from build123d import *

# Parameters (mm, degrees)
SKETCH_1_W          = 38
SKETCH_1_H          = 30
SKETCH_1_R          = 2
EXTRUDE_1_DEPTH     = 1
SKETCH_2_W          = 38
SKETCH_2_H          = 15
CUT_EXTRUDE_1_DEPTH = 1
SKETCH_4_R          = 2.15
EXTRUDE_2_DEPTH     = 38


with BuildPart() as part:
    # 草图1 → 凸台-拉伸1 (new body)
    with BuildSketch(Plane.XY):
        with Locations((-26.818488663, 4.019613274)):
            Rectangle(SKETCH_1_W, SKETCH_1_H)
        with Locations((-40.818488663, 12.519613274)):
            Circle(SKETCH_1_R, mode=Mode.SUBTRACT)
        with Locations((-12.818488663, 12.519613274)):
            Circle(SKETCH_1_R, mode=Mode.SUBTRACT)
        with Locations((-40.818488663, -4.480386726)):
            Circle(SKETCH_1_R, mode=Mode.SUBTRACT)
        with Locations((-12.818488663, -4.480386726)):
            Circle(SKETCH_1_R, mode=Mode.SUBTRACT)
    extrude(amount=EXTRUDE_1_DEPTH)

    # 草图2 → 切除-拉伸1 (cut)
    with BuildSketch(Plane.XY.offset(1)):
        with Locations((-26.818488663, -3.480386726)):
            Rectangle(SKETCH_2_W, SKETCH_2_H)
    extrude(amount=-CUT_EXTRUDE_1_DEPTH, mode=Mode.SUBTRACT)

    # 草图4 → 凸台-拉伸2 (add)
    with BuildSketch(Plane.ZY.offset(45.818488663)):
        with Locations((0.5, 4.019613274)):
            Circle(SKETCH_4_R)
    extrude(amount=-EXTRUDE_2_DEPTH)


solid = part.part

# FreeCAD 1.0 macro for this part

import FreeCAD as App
import Part
import Sketcher

V = App.Vector

doc = App.newDocument("Part")
body = doc.addObject("PartDesign::Body", "Body")

sketch1 = body.newObject("Sketcher::SketchObject", "Sketch")
sketch1.AttachmentSupport = (doc.getObject("XY_Plane"), [""])
sketch1.MapMode = "FlatFace"
sketch1.addGeometry([
    Part.LineSegment(V(-45.8, 19, 0), V(-45.8, -11, 0)),
    Part.LineSegment(V(-45.8, -11, 0), V(-7.8, -11, 0)),
    Part.LineSegment(V(-7.8, -11, 0), V(-7.8, 19, 0)),
    Part.LineSegment(V(-7.8, 19, 0), V(-45.8, 19, 0)),
    Part.Circle(V(-40.8, -4.5, 0), V(0, 0, 1), 2),
    Part.Circle(V(-12.8, -4.5, 0), V(0, 0, 1), 2),
    Part.Circle(V(-40.8, 12.5, 0), V(0, 0, 1), 2),
    Part.Circle(V(-12.8, 12.5, 0), V(0, 0, 1), 2),
], False)
sketch1.addConstraint([
    Sketcher.Constraint("Coincident", 0, 2, 1, 1),
    Sketcher.Constraint("Coincident", 1, 2, 2, 1),
    Sketcher.Constraint("Coincident", 2, 2, 3, 1),
    Sketcher.Constraint("Coincident", 3, 2, 0, 1),
    Sketcher.Constraint("Vertical", 0),
    Sketcher.Constraint("Horizontal", 1),
    Sketcher.Constraint("Vertical", 2),
    Sketcher.Constraint("Horizontal", 3),
    Sketcher.Constraint("Equal", 4, 5),
    Sketcher.Constraint("Equal", 5, 6),
    Sketcher.Constraint("Equal", 6, 7),
    Sketcher.Constraint("Horizontal", 4, 3, 5, 3),
    Sketcher.Constraint("Horizontal", 6, 3, 7, 3),
    Sketcher.Constraint("Vertical", 4, 3, 6, 3),
    Sketcher.Constraint("Vertical", 5, 3, 7, 3),
    Sketcher.Constraint("Diameter", 4, 4.0),
    Sketcher.Constraint("DistanceX", 1, 1, 1, 2, 38.0),
    Sketcher.Constraint("DistanceY", 0, 2, 0, 1, 30.0),
    Sketcher.Constraint("DistanceX", 4, 3, 5, 3, 28.0),
    Sketcher.Constraint("DistanceY", 4, 3, 6, 3, 17.0),
    Sketcher.Constraint("DistanceX", 0, 2, 4, 3, 5.0),
    Sketcher.Constraint("DistanceY", 0, 2, 4, 3, 6.5),
    Sketcher.Constraint("DistanceX", 4, 3, -1, 1, 40.818489),
    Sketcher.Constraint("DistanceY", 4, 3, -1, 1, 4.480387),
])
pad1 = body.newObject("PartDesign::Pad", "Pad")
pad1.Profile = sketch1
pad1.Length = 1

sketch2 = body.newObject("Sketcher::SketchObject", "Sketch001")
sketch2.AttachmentSupport = (doc.getObject("XY_Plane"), [""])
sketch2.MapMode = "FlatFace"
sketch2.AttachmentOffset = App.Placement(V(0, 0, 1), App.Rotation())
sketch2.addGeometry([
    Part.LineSegment(V(-46, 4, 0), V(-46, -11, 0)),
    Part.LineSegment(V(-46, -11, 0), V(-8, -11, 0)),
    Part.LineSegment(V(-8, -11, 0), V(-8, 4, 0)),
    Part.LineSegment(V(-8, 4, 0), V(-46, 4, 0)),
], False)
sketch2.addConstraint([
    Sketcher.Constraint("Coincident", 0, 2, 1, 1),
    Sketcher.Constraint("Coincident", 1, 2, 2, 1),
    Sketcher.Constraint("Coincident", 2, 2, 3, 1),
    Sketcher.Constraint("Coincident", 3, 2, 0, 1),
    Sketcher.Constraint("Vertical", 0),
    Sketcher.Constraint("Horizontal", 1),
    Sketcher.Constraint("Vertical", 2),
    Sketcher.Constraint("Horizontal", 3),
    Sketcher.Constraint("DistanceX", 1, 1, 1, 2, 38.0),
    Sketcher.Constraint("DistanceY", 0, 2, 0, 1, 15.0),
    Sketcher.Constraint("DistanceX", 0, 2, -1, 1, 45.818489),
    Sketcher.Constraint("DistanceY", 0, 2, -1, 1, 10.980387),
])
pocket1 = body.newObject("PartDesign::Pocket", "Pocket")
pocket1.Profile = sketch2
pocket1.Length = 1

sketch3 = body.newObject("Sketcher::SketchObject", "Sketch002")
sketch3.AttachmentSupport = (doc.getObject("YZ_Plane"), [""])
sketch3.MapMode = "FlatFace"
sketch3.AttachmentOffset = App.Placement(V(0, 0, -45.818489), App.Rotation())
sketch3.addGeometry(Part.Circle(V(4, 0.5, 0), V(0, 0, 1), 2.1), False)
sketch3.addConstraint([
    Sketcher.Constraint("Diameter", 0, 4.3),
    Sketcher.Constraint("DistanceY", -1, 1, 0, 3, 0.5),
    Sketcher.Constraint("DistanceX", -1, 1, 0, 3, 4.019613),
])
pad2 = body.newObject("PartDesign::Pad", "Pad001")
pad2.Profile = sketch3
pad2.Length = 38

doc.recompute()
